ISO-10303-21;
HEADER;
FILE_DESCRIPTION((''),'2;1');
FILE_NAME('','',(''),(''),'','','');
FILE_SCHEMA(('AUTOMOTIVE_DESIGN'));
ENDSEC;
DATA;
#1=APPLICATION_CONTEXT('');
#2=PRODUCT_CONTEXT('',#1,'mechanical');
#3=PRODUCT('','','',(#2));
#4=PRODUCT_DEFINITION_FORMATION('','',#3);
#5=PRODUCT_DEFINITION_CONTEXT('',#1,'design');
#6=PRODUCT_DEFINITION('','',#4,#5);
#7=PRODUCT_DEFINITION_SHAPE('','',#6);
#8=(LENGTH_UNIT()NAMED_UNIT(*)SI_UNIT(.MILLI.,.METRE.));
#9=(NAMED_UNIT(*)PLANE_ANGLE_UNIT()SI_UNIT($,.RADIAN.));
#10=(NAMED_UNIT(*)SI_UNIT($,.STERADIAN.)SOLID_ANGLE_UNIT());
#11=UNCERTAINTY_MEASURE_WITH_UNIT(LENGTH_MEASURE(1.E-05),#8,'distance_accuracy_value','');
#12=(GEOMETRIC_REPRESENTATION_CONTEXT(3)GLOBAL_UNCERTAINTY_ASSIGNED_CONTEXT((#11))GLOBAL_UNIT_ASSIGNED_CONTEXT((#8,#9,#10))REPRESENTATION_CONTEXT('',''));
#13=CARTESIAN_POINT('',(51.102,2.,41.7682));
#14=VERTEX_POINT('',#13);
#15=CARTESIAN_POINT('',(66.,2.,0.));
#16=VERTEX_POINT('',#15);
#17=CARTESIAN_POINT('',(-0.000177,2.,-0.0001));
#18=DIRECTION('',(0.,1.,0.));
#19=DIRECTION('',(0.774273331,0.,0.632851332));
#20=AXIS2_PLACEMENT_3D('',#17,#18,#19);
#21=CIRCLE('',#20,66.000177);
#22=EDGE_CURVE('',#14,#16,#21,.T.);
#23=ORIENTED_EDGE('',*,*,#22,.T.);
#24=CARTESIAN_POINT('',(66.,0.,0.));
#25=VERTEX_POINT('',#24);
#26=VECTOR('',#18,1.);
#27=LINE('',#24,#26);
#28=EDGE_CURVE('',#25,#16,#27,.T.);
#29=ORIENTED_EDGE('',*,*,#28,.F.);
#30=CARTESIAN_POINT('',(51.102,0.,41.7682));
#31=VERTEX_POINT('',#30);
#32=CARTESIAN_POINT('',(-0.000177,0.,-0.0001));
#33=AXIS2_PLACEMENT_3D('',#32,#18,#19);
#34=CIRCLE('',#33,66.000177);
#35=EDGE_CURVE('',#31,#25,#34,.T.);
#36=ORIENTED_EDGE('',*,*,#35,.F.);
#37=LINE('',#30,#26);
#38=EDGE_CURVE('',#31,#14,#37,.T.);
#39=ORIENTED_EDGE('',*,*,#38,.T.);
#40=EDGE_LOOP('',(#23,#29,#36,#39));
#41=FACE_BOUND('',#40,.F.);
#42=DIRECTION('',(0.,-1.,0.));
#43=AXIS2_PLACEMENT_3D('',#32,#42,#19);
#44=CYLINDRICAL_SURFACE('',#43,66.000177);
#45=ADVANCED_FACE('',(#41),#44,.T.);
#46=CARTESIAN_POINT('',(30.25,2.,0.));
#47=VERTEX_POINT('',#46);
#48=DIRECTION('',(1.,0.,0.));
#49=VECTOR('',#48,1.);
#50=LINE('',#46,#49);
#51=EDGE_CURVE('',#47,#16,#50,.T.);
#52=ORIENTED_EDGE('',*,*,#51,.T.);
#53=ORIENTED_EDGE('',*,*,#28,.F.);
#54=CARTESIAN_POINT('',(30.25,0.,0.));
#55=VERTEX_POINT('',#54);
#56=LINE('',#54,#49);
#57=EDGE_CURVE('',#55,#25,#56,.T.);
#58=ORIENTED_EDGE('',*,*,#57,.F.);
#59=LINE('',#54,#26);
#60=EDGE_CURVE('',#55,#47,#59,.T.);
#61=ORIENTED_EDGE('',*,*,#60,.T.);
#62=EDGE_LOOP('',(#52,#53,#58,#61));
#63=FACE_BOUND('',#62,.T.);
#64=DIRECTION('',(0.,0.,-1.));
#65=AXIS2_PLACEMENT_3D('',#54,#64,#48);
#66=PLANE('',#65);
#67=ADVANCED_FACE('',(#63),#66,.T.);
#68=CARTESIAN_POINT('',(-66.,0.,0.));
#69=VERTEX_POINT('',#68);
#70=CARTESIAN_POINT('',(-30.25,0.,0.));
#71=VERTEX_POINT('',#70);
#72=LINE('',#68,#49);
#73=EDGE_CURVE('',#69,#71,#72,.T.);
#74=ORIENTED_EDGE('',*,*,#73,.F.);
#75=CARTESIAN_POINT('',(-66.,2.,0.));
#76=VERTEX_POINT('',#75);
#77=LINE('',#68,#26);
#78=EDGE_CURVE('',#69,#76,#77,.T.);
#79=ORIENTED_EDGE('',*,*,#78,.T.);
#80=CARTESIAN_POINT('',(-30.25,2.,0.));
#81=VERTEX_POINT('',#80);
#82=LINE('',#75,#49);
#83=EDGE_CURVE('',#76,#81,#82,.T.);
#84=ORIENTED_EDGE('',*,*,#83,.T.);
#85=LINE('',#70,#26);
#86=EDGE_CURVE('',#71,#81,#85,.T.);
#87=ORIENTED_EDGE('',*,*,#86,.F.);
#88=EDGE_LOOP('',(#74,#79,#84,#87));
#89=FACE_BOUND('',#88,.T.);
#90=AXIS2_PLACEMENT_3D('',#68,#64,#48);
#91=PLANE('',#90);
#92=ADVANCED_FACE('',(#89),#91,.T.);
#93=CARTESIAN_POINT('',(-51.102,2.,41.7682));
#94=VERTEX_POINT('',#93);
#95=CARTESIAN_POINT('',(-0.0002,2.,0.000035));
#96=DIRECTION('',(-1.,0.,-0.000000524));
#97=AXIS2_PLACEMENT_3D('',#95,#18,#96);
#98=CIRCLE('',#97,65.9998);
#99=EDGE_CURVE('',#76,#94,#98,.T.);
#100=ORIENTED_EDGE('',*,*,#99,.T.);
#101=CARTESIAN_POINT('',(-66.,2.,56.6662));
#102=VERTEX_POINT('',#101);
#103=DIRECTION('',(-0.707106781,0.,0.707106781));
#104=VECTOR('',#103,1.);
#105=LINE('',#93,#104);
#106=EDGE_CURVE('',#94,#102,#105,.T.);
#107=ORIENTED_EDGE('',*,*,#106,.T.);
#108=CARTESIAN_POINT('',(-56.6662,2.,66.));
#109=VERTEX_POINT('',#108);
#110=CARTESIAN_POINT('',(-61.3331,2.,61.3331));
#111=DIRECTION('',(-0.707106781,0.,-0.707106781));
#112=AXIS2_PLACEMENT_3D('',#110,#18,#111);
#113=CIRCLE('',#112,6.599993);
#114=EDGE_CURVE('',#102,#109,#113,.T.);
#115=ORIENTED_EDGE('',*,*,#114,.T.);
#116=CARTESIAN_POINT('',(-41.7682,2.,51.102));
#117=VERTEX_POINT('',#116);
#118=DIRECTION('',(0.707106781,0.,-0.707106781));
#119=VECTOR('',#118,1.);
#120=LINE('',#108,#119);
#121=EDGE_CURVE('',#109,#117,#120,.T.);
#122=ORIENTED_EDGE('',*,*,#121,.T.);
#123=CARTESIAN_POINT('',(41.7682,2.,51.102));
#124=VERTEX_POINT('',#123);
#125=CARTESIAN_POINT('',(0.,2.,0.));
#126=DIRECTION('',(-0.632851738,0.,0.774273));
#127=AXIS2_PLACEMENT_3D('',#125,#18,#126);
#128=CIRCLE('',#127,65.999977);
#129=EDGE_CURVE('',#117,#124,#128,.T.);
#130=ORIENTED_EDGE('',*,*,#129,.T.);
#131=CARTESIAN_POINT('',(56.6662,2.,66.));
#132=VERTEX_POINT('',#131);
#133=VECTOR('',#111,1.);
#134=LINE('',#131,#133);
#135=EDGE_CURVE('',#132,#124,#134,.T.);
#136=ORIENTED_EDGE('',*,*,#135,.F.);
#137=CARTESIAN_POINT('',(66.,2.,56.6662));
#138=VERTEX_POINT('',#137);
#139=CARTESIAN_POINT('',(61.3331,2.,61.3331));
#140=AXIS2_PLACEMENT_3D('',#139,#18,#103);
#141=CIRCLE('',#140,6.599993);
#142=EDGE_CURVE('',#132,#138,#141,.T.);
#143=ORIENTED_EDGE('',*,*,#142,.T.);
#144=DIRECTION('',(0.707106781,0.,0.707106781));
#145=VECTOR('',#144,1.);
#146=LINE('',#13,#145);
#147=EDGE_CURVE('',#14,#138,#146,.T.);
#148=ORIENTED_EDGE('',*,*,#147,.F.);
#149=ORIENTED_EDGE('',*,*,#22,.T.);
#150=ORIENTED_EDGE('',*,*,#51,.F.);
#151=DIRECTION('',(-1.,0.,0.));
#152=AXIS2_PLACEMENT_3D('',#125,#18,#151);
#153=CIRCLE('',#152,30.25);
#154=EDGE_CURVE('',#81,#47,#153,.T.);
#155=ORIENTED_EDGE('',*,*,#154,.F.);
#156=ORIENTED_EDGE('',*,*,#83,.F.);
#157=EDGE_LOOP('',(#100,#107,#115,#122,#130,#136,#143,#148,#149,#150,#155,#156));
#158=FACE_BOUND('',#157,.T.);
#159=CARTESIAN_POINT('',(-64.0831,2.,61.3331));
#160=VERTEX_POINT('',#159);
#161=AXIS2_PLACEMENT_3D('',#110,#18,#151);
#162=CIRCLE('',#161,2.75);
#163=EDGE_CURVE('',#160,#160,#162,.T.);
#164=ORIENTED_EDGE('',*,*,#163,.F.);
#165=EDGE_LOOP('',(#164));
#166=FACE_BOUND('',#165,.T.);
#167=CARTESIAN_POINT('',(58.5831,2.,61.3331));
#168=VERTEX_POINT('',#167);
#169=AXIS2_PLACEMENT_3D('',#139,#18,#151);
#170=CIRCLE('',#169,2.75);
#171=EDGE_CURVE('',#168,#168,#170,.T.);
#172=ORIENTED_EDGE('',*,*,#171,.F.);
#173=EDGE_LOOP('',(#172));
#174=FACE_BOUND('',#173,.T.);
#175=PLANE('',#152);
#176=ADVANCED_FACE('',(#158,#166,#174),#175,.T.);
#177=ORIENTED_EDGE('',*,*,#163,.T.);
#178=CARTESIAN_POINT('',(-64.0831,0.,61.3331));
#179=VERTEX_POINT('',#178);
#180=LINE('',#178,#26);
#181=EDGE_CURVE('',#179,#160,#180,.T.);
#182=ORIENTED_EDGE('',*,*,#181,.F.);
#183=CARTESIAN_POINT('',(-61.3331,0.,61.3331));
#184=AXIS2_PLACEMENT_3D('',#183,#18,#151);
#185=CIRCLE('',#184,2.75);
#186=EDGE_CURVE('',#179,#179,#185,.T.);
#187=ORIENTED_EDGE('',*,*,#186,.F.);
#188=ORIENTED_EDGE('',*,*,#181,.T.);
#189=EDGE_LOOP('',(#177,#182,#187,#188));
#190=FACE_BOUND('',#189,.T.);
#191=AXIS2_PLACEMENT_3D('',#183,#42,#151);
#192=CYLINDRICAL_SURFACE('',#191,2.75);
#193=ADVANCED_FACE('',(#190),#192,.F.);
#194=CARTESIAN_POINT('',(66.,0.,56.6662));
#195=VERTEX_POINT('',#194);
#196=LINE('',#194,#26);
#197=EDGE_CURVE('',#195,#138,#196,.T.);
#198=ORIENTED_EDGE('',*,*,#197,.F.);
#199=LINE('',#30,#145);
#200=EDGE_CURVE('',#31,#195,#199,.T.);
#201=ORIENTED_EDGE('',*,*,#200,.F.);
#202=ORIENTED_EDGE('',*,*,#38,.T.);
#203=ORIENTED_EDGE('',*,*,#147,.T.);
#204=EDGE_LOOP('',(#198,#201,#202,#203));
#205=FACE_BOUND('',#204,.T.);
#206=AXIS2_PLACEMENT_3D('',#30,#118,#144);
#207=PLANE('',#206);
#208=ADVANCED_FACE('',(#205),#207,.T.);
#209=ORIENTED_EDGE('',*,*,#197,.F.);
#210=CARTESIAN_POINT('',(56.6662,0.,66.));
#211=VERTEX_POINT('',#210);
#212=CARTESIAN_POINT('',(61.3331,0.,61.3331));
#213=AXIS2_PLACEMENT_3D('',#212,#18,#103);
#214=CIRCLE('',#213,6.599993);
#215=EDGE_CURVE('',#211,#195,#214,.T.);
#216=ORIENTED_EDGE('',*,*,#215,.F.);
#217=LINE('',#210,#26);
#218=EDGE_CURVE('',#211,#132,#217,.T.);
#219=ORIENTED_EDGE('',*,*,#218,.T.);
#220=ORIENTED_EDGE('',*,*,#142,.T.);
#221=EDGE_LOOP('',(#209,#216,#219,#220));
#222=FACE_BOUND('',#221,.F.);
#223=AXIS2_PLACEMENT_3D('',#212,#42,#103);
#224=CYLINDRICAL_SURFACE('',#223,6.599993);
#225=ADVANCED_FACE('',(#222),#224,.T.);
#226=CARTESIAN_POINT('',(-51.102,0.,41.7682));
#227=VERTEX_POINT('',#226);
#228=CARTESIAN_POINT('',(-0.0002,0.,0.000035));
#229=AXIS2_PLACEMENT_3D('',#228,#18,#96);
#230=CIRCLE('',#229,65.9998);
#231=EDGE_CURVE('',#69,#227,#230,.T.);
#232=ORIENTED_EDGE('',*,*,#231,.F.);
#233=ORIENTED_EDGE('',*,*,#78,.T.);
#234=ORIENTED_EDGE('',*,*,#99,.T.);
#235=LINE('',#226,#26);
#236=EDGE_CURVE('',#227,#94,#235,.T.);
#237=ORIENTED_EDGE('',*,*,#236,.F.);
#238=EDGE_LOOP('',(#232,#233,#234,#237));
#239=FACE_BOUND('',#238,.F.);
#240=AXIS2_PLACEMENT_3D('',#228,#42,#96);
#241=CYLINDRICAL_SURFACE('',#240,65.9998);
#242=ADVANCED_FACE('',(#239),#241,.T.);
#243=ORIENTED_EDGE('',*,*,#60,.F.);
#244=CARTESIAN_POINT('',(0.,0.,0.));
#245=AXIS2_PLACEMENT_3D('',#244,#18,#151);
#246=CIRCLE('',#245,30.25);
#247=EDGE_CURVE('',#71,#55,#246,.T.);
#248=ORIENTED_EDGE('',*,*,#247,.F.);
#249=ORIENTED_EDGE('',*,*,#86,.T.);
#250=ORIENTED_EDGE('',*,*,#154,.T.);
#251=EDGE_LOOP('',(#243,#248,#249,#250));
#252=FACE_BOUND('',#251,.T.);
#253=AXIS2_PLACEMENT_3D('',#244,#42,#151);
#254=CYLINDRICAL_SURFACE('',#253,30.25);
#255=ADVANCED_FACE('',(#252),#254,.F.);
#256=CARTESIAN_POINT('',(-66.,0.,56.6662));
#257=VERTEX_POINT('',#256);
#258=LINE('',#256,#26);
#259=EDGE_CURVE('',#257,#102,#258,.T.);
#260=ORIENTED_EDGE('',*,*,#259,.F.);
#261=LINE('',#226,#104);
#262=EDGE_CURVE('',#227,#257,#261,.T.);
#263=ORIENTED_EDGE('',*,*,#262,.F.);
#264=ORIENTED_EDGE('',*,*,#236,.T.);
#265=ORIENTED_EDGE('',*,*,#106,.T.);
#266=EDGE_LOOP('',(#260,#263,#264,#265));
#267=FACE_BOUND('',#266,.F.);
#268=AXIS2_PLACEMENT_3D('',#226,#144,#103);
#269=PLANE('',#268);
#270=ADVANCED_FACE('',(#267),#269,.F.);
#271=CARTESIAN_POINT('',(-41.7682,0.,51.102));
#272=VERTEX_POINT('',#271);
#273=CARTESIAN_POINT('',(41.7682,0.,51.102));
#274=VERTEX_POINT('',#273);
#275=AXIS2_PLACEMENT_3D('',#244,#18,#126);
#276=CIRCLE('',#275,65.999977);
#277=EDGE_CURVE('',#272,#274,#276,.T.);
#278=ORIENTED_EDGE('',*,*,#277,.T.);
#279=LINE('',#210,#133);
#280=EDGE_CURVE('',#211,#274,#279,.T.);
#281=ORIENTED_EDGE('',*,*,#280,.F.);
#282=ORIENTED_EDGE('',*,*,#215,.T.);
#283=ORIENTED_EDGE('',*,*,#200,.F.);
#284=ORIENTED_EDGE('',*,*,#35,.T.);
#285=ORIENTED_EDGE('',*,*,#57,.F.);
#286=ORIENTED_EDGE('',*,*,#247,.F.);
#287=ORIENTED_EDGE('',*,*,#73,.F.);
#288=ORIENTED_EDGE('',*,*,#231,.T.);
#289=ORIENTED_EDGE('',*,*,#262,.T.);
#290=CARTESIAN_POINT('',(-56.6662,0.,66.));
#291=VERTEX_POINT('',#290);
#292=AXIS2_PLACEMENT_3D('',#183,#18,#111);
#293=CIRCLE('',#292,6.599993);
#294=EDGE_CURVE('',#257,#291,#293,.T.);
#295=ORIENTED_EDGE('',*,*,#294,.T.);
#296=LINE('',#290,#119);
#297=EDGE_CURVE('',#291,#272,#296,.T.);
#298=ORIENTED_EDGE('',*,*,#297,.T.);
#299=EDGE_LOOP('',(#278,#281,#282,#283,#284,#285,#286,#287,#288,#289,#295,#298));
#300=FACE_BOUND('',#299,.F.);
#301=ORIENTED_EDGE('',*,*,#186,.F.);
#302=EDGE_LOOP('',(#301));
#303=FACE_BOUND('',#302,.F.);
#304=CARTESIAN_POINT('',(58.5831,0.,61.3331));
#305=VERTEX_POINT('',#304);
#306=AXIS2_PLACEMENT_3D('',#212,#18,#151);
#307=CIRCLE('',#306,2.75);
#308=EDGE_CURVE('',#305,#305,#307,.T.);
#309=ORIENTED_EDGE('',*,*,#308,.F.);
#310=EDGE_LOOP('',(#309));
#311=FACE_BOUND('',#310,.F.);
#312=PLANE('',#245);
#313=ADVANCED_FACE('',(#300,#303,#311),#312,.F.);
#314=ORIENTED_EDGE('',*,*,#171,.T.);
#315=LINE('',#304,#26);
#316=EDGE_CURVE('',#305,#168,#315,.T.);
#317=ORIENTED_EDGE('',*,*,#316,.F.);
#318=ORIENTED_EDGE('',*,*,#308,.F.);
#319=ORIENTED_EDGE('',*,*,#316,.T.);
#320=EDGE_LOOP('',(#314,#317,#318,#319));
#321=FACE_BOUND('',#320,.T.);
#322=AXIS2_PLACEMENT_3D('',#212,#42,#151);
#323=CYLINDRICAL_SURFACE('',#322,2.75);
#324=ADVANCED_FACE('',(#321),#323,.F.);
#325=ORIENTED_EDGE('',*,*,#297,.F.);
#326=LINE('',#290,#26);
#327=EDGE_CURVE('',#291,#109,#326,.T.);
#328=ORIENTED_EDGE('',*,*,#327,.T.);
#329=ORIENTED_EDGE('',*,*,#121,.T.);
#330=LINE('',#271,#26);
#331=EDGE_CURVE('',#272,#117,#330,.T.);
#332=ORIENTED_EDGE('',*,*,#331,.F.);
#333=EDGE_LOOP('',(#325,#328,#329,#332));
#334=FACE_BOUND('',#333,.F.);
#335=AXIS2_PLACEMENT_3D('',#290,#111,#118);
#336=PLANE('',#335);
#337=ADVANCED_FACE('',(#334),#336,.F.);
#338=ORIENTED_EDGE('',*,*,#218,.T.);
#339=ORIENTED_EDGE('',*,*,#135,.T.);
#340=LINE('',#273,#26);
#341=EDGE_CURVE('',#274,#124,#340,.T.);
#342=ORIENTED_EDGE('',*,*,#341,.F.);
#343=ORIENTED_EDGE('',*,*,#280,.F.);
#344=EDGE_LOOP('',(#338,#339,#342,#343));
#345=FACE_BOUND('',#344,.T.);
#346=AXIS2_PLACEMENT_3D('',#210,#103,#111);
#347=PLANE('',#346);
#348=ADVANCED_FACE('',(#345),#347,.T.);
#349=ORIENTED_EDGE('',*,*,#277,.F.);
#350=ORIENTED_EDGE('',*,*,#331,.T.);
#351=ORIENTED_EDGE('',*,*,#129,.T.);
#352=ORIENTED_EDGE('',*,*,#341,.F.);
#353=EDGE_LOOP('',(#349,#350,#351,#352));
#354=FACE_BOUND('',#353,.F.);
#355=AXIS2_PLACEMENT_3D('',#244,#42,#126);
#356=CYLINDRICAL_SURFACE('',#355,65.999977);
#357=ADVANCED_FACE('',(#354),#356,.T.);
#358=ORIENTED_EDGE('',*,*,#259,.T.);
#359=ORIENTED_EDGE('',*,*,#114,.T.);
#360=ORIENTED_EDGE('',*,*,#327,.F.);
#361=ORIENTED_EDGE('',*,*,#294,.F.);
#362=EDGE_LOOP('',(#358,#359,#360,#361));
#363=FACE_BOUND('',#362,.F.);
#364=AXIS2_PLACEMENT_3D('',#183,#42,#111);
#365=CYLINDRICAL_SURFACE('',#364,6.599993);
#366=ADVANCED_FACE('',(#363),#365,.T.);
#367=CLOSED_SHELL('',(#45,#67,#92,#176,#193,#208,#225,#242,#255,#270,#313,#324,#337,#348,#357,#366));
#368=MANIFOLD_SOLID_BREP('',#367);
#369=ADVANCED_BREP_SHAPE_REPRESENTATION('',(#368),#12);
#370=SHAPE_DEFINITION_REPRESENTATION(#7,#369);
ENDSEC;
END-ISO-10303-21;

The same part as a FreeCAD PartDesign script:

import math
import FreeCAD as App
import Part
import Sketcher
from FreeCAD import Vector

doc = App.newDocument("Part")
params = doc.addObject("Spreadsheet::Sheet", "Params")
for row, (alias, value) in enumerate([
    ("sketch1_diameter", "5.5 mm"),
    ("sketch1_radius", "66 mm"),
    ("sketch1_radius2", "6.6 mm"),
    ("sketch1_radius3", "30.25 mm"),
    ("pad1_length", "2 mm"),
], start=1):
    params.set(f"A{row}", alias)
    params.set(f"B{row}", "=" + value)
    params.setAlias(f"B{row}", alias)

body = doc.addObject("PartDesign::Body", "Body")

sketch1 = doc.addObject("Sketcher::SketchObject", "Sketch")
body.addObject(sketch1)
sketch1.AttachmentSupport = (doc.XZ_Plane, [""])
sketch1.MapMode = "FlatFace"
sketch1.addGeometry(Part.ArcOfCircle(Part.Circle(Vector(0, 0, 0), Vector(0, 0, 1), 30.2), math.radians(0), math.radians(180)), False)
sketch1.addGeometry(Part.LineSegment(Vector(-30.2, 0, 0), Vector(-66, 0, 0)), False)
sketch1.addGeometry(Part.ArcOfCircle(Part.Circle(Vector(0, 0, 0), Vector(0, 0, 1), 66), math.radians(141), math.radians(180)), False)
sketch1.addGeometry(Part.LineSegment(Vector(-51.1, 41.8, 0), Vector(-66, 56.7, 0)), False)
sketch1.addGeometry(Part.ArcOfCircle(Part.Circle(Vector(-61.3, 61.3, 0), Vector(0, 0, 1), 6.6), math.radians(45), math.radians(225)), False)
sketch1.addGeometry(Part.LineSegment(Vector(-56.7, 66, 0), Vector(-41.8, 51.1, 0)), False)
sketch1.addGeometry(Part.ArcOfCircle(Part.Circle(Vector(0, 0, 0), Vector(0, 0, 1), 66), math.radians(51), math.radians(129)), False)
sketch1.addGeometry(Part.LineSegment(Vector(41.8, 51.1, 0), Vector(56.7, 66, 0)), False)
sketch1.addGeometry(Part.ArcOfCircle(Part.Circle(Vector(61.3, 61.3, 0), Vector(0, 0, 1), 6.6), math.radians(-45), math.radians(135)), False)
sketch1.addGeometry(Part.LineSegment(Vector(66, 56.7, 0), Vector(51.1, 41.8, 0)), False)
sketch1.addGeometry(Part.ArcOfCircle(Part.Circle(Vector(0, 0, 0), Vector(0, 0, 1), 66), math.radians(0), math.radians(39)), False)
sketch1.addGeometry(Part.LineSegment(Vector(66, 0, 0), Vector(30.2, 0, 0)), False)
sketch1.addGeometry(Part.Circle(Vector(61.3, 61.3, 0), Vector(0, 0, 1), 2.8), False)
sketch1.addGeometry(Part.Circle(Vector(-61.3, 61.3, 0), Vector(0, 0, 1), 2.8), False)
sketch1.addConstraint(Sketcher.Constraint("Coincident", 0, 2, 1, 1))
sketch1.addConstraint(Sketcher.Constraint("Coincident", 1, 2, 2, 2))
sketch1.addConstraint(Sketcher.Constraint("Coincident", 2, 1, 3, 1))
sketch1.addConstraint(Sketcher.Constraint("Tangent", 3, 2, 4, 2))
sketch1.addConstraint(Sketcher.Constraint("Tangent", 4, 1, 5, 1))
sketch1.addConstraint(Sketcher.Constraint("Coincident", 5, 2, 6, 2))
sketch1.addConstraint(Sketcher.Constraint("Coincident", 6, 1, 7, 1))
sketch1.addConstraint(Sketcher.Constraint("Tangent", 7, 2, 8, 2))
sketch1.addConstraint(Sketcher.Constraint("Tangent", 8, 1, 9, 1))
sketch1.addConstraint(Sketcher.Constraint("Coincident", 9, 2, 10, 2))
sketch1.addConstraint(Sketcher.Constraint("Coincident", 10, 1, 11, 1))
sketch1.addConstraint(Sketcher.Constraint("Coincident", 11, 2, 0, 1))
sketch1.addConstraint(Sketcher.Constraint("Horizontal", 1))
sketch1.addConstraint(Sketcher.Constraint("Horizontal", 11))
sketch1.addConstraint(Sketcher.Constraint("Coincident", 0, 3, -1, 1))
sketch1.addConstraint(Sketcher.Constraint("Coincident", 2, 3, -1, 1))
sketch1.addConstraint(Sketcher.Constraint("Coincident", 6, 3, -1, 1))
sketch1.addConstraint(Sketcher.Constraint("Coincident", 10, 3, -1, 1))
sketch1.addConstraint(Sketcher.Constraint("Coincident", 12, 3, 8, 3))
sketch1.addConstraint(Sketcher.Constraint("Coincident", 13, 3, 4, 3))
sketch1.addConstraint(Sketcher.Constraint("Equal", 2, 6))
sketch1.addConstraint(Sketcher.Constraint("Equal", 4, 8))
sketch1.addConstraint(Sketcher.Constraint("Equal", 6, 10))
sketch1.addConstraint(Sketcher.Constraint("Equal", 12, 13))
sketch1.addConstraint(Sketcher.Constraint("Symmetric", 4, 3, 8, 3, -2))
sketch1.addConstraint(Sketcher.Constraint("PointOnObject", 0, 2, -1))
sketch1.addConstraint(Sketcher.Constraint("PointOnObject", 10, 1, -1))
sketch1.addConstraint(Sketcher.Constraint("Parallel", 3, 5))
sketch1.addConstraint(Sketcher.Constraint("Perpendicular", 5, 7))
sketch1.addConstraint(Sketcher.Constraint("Parallel", 7, 9))
sketch1.addConstraint(Sketcher.Constraint("Horizontal", 5, 2, 6, 1))
sketch1.addConstraint(Sketcher.Constraint("Vertical", 1, 2, 3, 2))
sketch1.addConstraint(Sketcher.Constraint("Equal", 3, 5))
sketch1.addConstraint(Sketcher.Constraint("Diameter", 12, 5.5))
sketch1.addConstraint(Sketcher.Constraint("Radius", 2, 66.0))
sketch1.addConstraint(Sketcher.Constraint("Radius", 4, 6.6))
sketch1.addConstraint(Sketcher.Constraint("Radius", 0, 30.25))
sketch1.setExpression("Constraints[33]", "Params.sketch1_diameter")
sketch1.setExpression("Constraints[34]", "Params.sketch1_radius")
sketch1.setExpression("Constraints[35]", "Params.sketch1_radius2")
sketch1.setExpression("Constraints[36]", "Params.sketch1_radius3")
pad1 = doc.addObject("PartDesign::Pad", "Pad")
body.addObject(pad1)
pad1.Profile = sketch1
pad1.setExpression("Length", "Params.pad1_length")
pad1.Reversed = True

doc.recompute()
